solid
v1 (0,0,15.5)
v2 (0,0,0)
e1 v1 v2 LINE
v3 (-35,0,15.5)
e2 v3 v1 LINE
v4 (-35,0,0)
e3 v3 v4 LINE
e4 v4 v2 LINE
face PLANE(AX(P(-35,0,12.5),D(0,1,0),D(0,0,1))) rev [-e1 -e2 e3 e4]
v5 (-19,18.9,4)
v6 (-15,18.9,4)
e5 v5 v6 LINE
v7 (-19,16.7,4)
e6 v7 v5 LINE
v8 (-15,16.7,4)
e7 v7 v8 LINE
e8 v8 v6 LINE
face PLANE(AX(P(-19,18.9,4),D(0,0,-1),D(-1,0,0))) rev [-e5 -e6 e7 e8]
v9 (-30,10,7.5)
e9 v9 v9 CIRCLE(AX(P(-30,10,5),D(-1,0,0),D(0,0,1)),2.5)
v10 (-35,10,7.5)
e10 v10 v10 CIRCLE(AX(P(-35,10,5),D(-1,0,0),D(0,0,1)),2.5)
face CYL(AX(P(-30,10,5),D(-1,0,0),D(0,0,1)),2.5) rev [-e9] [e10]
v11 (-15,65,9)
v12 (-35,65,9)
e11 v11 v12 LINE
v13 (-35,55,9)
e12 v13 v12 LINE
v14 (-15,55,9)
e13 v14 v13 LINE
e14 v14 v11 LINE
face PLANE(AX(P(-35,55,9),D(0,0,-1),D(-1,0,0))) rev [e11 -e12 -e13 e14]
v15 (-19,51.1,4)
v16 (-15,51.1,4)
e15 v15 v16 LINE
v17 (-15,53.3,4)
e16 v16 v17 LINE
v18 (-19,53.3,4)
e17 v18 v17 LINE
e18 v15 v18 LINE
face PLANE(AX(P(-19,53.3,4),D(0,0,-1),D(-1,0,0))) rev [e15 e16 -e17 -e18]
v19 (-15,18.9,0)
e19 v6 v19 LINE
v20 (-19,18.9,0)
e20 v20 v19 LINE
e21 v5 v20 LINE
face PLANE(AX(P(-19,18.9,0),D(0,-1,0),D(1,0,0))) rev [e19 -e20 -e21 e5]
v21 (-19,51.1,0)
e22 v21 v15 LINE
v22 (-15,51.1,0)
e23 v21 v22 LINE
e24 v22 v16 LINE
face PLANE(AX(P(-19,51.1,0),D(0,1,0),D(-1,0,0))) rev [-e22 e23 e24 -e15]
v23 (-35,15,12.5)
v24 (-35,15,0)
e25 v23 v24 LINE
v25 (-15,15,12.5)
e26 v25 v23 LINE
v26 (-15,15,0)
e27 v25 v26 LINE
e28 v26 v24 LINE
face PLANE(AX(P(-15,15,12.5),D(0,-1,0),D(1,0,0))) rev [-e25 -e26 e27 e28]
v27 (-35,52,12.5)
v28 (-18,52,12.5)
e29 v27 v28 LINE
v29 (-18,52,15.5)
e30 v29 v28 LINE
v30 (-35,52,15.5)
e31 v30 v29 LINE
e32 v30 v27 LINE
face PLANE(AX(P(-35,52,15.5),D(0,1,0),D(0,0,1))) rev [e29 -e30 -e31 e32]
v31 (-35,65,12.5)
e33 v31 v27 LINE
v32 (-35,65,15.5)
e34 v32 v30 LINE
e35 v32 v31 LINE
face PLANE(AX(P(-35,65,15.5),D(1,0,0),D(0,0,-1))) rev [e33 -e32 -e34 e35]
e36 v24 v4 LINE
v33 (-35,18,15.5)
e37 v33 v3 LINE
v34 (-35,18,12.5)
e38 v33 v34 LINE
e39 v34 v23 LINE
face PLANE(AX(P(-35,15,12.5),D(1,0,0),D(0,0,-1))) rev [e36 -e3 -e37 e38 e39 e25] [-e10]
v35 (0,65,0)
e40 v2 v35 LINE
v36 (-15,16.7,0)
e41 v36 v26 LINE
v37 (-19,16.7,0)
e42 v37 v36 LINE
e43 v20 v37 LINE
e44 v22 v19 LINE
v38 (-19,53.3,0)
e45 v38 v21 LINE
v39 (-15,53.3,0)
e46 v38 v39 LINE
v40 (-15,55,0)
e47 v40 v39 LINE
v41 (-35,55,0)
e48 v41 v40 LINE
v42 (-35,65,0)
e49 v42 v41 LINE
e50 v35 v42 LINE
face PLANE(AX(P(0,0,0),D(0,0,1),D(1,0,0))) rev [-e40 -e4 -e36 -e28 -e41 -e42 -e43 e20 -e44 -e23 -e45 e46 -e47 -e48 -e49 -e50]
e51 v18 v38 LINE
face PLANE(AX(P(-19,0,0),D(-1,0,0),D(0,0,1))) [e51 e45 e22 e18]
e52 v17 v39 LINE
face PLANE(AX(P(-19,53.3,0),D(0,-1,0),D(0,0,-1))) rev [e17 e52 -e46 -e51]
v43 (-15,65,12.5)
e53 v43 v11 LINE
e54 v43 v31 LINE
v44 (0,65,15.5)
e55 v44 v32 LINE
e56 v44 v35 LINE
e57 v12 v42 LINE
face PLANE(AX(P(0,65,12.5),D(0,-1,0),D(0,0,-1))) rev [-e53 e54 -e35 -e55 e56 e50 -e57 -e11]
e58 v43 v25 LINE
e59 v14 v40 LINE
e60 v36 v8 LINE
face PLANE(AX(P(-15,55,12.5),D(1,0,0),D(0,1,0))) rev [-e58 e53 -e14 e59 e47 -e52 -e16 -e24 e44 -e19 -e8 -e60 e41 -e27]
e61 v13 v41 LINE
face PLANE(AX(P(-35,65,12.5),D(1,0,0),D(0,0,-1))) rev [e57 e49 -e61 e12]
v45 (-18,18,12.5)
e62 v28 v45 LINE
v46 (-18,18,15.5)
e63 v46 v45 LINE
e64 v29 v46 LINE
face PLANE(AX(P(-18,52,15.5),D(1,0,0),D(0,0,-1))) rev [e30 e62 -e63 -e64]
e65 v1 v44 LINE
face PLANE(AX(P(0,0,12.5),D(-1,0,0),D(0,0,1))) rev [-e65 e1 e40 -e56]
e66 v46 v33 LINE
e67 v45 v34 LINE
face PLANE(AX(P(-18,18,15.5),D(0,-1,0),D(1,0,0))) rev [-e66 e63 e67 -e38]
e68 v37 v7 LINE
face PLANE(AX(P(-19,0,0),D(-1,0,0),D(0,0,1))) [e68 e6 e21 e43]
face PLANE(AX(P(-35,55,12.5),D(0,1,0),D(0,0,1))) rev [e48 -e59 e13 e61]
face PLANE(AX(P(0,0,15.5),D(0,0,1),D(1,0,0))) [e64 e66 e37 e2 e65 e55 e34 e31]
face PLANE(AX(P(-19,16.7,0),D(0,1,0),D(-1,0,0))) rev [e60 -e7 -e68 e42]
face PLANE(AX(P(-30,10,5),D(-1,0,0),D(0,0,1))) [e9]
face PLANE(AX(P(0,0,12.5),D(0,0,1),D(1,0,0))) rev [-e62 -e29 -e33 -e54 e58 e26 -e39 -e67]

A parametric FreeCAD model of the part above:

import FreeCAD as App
import Part
import Sketcher
from FreeCAD import Vector
Q = App.Units.Quantity

doc = App.newDocument("Part")
body = doc.addObject("PartDesign::Body", "Body")

sketch1 = body.newObject("Sketcher::SketchObject", "Sketch")
sketch1.AttachmentSupport = (doc.getObject("XY_Plane"), [""])
sketch1.MapMode = "FlatFace"
sketch1.addGeometry([
    Part.LineSegment(Vector(0, 0, 0), Vector(0, 65, 0)),
    Part.LineSegment(Vector(0, 65, 0), Vector(-35, 65, 0)),
    Part.LineSegment(Vector(-35, 65, 0), Vector(-35, 55, 0)),
    Part.LineSegment(Vector(-35, 55, 0), Vector(-15, 55, 0)),
    Part.LineSegment(Vector(-15, 55, 0), Vector(-15, 15, 0)),
    Part.LineSegment(Vector(-15, 15, 0), Vector(-35, 15, 0)),
    Part.LineSegment(Vector(-35, 15, 0), Vector(-35, 0, 0)),
    Part.LineSegment(Vector(-35, 0, 0), Vector(0, 0, 0)),
], False)
sketch1.addConstraint([
    Sketcher.Constraint("Coincident", 0, 2, 1, 1),
    Sketcher.Constraint("Coincident", 1, 2, 2, 1),
    Sketcher.Constraint("Coincident", 2, 2, 3, 1),
    Sketcher.Constraint("Coincident", 3, 2, 4, 1),
    Sketcher.Constraint("Coincident", 4, 2, 5, 1),
    Sketcher.Constraint("Coincident", 5, 2, 6, 1),
    Sketcher.Constraint("Coincident", 6, 2, 7, 1),
    Sketcher.Constraint("Coincident", 7, 2, 0, 1),
    Sketcher.Constraint("Vertical", 0),
    Sketcher.Constraint("Horizontal", 1),
    Sketcher.Constraint("Vertical", 2),
    Sketcher.Constraint("Horizontal", 3),
    Sketcher.Constraint("Vertical", 4),
    Sketcher.Constraint("Horizontal", 5),
    Sketcher.Constraint("Vertical", 6),
    Sketcher.Constraint("Horizontal", 7),
    Sketcher.Constraint("Coincident", 7, 2, -1, 1),
    Sketcher.Constraint("Vertical", 2, 2, 5, 2),
    Sketcher.Constraint("DistanceX", 1, 2, 1, 1, Q("35 mm")),
    Sketcher.Constraint("DistanceX", 3, 1, 3, 2, Q("20 mm")),
    Sketcher.Constraint("DistanceY", 0, 1, 0, 2, Q("65 mm")),
    Sketcher.Constraint("DistanceY", 2, 2, 2, 1, Q("10 mm")),
    Sketcher.Constraint("DistanceY", 4, 2, 4, 1, Q("40 mm")),
])
pad1 = body.newObject("PartDesign::Pad", "Pad")
pad1.Profile = sketch1
pad1.Length = 12.5

sketch2 = body.newObject("Sketcher::SketchObject", "Sketch001")
sketch2.AttachmentSupport = (doc.getObject("XZ_Plane"), [""])
sketch2.MapMode = "FlatFace"
sketch2.AttachmentOffset = App.Placement(Vector(0, 0, -65), App.Rotation())
sketch2.addGeometry([
    Part.LineSegment(Vector(-35, 9, 0), Vector(-35, 12.5, 0)),
    Part.LineSegment(Vector(-35, 12.5, 0), Vector(-15, 12.5, 0)),
    Part.LineSegment(Vector(-15, 12.5, 0), Vector(-15, 9, 0)),
    Part.LineSegment(Vector(-15, 9, 0), Vector(-35, 9, 0)),
], False)
sketch2.addConstraint([
    Sketcher.Constraint("Coincident", 0, 2, 1, 1),
    Sketcher.Constraint("Coincident", 1, 2, 2, 1),
    Sketcher.Constraint("Coincident", 2, 2, 3, 1),
    Sketcher.Constraint("Coincident", 3, 2, 0, 1),
    Sketcher.Constraint("Vertical", 0),
    Sketcher.Constraint("Horizontal", 1),
    Sketcher.Constraint("Vertical", 2),
    Sketcher.Constraint("Horizontal", 3),
    Sketcher.Constraint("DistanceX", 1, 1, 1, 2, Q("20 mm")),
    Sketcher.Constraint("DistanceY", 0, 1, 0, 2, Q("3.5 mm")),
    Sketcher.Constraint("DistanceX", 0, 2, -1, 1, Q("35 mm")),
    Sketcher.Constraint("DistanceY", -1, 1, 2, 2, Q("9 mm")),
])
pocket1 = body.newObject("PartDesign::Pocket", "Pocket")
pocket1.Profile = sketch2
pocket1.Length = 10
pocket1.Reversed = True

sketch3 = body.newObject("Sketcher::SketchObject", "Sketch002")
sketch3.AttachmentSupport = (doc.getObject("XY_Plane"), [""])
sketch3.MapMode = "FlatFace"
sketch3.AttachmentOffset = App.Placement(Vector(0, 0, 12.5), App.Rotation())
sketch3.addGeometry([
    Part.LineSegment(Vector(-35, 0, 0), Vector(0, 0, 0)),
    Part.LineSegment(Vector(0, 0, 0), Vector(0, 65, 0)),
    Part.LineSegment(Vector(0, 65, 0), Vector(-35, 65, 0)),
    Part.LineSegment(Vector(-35, 65, 0), Vector(-35, 52, 0)),
    Part.LineSegment(Vector(-35, 52, 0), Vector(-18, 52, 0)),
    Part.LineSegment(Vector(-18, 52, 0), Vector(-18, 18, 0)),
    Part.LineSegment(Vector(-18, 18, 0), Vector(-35, 18, 0)),
    Part.LineSegment(Vector(-35, 18, 0), Vector(-35, 0, 0)),
], False)
sketch3.addConstraint([
    Sketcher.Constraint("Coincident", 0, 2, 1, 1),
    Sketcher.Constraint("Coincident", 1, 2, 2, 1),
    Sketcher.Constraint("Coincident", 2, 2, 3, 1),
    Sketcher.Constraint("Coincident", 3, 2, 4, 1),
    Sketcher.Constraint("Coincident", 4, 2, 5, 1),
    Sketcher.Constraint("Coincident", 5, 2, 6, 1),
    Sketcher.Constraint("Coincident", 6, 2, 7, 1),
    Sketcher.Constraint("Coincident", 7, 2, 0, 1),
    Sketcher.Constraint("Horizontal", 0),
    Sketcher.Constraint("Vertical", 1),
    Sketcher.Constraint("Horizontal", 2),
    Sketcher.Constraint("Vertical", 3),
    Sketcher.Constraint("Horizontal", 4),
    Sketcher.Constraint("Vertical", 5),
    Sketcher.Constraint("Horizontal", 6),
    Sketcher.Constraint("Vertical", 7),
    Sketcher.Constraint("Coincident", 0, 2, -1, 1),
    Sketcher.Constraint("Vertical", 3, 2, 6, 2),
    Sketcher.Constraint("DistanceX", 0, 1, 0, 2, Q("35 mm")),
    Sketcher.Constraint("DistanceX", 4, 1, 4, 2, Q("17 mm")),
    Sketcher.Constraint("DistanceY", 1, 1, 1, 2, Q("65 mm")),
    Sketcher.Constraint("DistanceY", 3, 2, 3, 1, Q("13 mm")),
    Sketcher.Constraint("DistanceY", 5, 2, 5, 1, Q("34 mm")),
])
pad2 = body.newObject("PartDesign::Pad", "Pad001")
pad2.Profile = sketch3
pad2.Length = 3

sketch4 = body.newObject("Sketcher::SketchObject", "Sketch003")
sketch4.AttachmentSupport = (doc.getObject("YZ_Plane"), [""])
sketch4.MapMode = "FlatFace"
sketch4.AttachmentOffset = App.Placement(Vector(0, 0, -35), App.Rotation())
sketch4.addGeometry(Part.Circle(Vector(10, 5, 0), Vector(0, 0, 1), 2.5), False)
sketch4.addConstraint([
    Sketcher.Constraint("Diameter", 0, Q("5 mm")),
    Sketcher.Constraint("DistanceX", -1, 1, 0, 3, Q("10 mm")),
    Sketcher.Constraint("DistanceY", -1, 1, 0, 3, Q("5 mm")),
])
pocket2 = body.newObject("PartDesign::Pocket", "Pocket001")
pocket2.Profile = sketch4
pocket2.Length = 5
pocket2.Reversed = True

sketch5 = body.newObject("Sketcher::SketchObject", "Sketch004")
sketch5.AttachmentSupport = (doc.getObject("YZ_Plane"), [""])
sketch5.MapMode = "FlatFace"
sketch5.AttachmentOffset = App.Placement(Vector(0, 0, -15), App.Rotation())
sketch5.addGeometry([
    Part.LineSegment(Vector(18.9, 0, 0), Vector(16.7, 0, 0)),
    Part.LineSegment(Vector(16.7, 0, 0), Vector(16.7, 4, 0)),
    Part.LineSegment(Vector(16.7, 4, 0), Vector(18.9, 4, 0)),
    Part.LineSegment(Vector(18.9, 4, 0), Vector(18.9, 0, 0)),
    Part.LineSegment(Vector(53.3, 0, 0), Vector(51.1, 0, 0)),
    Part.LineSegment(Vector(51.1, 0, 0), Vector(51.1, 4, 0)),
    Part.LineSegment(Vector(51.1, 4, 0), Vector(53.3, 4, 0)),
    Part.LineSegment(Vector(53.3, 4, 0), Vector(53.3, 0, 0)),
], False)
sketch5.addConstraint([
    Sketcher.Constraint("Coincident", 0, 2, 1, 1),
    Sketcher.Constraint("Coincident", 1, 2, 2, 1),
    Sketcher.Constraint("Coincident", 2, 2, 3, 1),
    Sketcher.Constraint("Coincident", 3, 2, 0, 1),
    Sketcher.Constraint("Coincident", 4, 2, 5, 1),
    Sketcher.Constraint("Coincident", 5, 2, 6, 1),
    Sketcher.Constraint("Coincident", 6, 2, 7, 1),
    Sketcher.Constraint("Coincident", 7, 2, 4, 1),
    Sketcher.Constraint("Horizontal", 0),
    Sketcher.Constraint("Vertical", 1),
    Sketcher.Constraint("Horizontal", 2),
    Sketcher.Constraint("Vertical", 3),
    Sketcher.Constraint("Horizontal", 4),
    Sketcher.Constraint("Vertical", 5),
    Sketcher.Constraint("Horizontal", 6),
    Sketcher.Constraint("Vertical", 7),
    Sketcher.Constraint("PointOnObject", 0, 2, -1),
    Sketcher.Constraint("PointOnObject", 4, 2, -1),
    Sketcher.Constraint("Horizontal", 2, 2, 5, 2),
    Sketcher.Constraint("Equal", 2, 4),
    Sketcher.Constraint("DistanceY", 1, 1, 1, 2, Q("4 mm")),
    Sketcher.Constraint("DistanceX", 0, 2, 0, 1, Q("2.2 mm")),
    Sketcher.Constraint("DistanceX", -1, 1, 0, 2, Q("16.7 mm")),
    Sketcher.Constraint("DistanceX", -1, 1, 4, 2, Q("51.1 mm")),
])
pad3 = body.newObject("PartDesign::Pad", "Pad002")
pad3.Profile = sketch5
pad3.Length = 4
pad3.Reversed = True

doc.recompute()
